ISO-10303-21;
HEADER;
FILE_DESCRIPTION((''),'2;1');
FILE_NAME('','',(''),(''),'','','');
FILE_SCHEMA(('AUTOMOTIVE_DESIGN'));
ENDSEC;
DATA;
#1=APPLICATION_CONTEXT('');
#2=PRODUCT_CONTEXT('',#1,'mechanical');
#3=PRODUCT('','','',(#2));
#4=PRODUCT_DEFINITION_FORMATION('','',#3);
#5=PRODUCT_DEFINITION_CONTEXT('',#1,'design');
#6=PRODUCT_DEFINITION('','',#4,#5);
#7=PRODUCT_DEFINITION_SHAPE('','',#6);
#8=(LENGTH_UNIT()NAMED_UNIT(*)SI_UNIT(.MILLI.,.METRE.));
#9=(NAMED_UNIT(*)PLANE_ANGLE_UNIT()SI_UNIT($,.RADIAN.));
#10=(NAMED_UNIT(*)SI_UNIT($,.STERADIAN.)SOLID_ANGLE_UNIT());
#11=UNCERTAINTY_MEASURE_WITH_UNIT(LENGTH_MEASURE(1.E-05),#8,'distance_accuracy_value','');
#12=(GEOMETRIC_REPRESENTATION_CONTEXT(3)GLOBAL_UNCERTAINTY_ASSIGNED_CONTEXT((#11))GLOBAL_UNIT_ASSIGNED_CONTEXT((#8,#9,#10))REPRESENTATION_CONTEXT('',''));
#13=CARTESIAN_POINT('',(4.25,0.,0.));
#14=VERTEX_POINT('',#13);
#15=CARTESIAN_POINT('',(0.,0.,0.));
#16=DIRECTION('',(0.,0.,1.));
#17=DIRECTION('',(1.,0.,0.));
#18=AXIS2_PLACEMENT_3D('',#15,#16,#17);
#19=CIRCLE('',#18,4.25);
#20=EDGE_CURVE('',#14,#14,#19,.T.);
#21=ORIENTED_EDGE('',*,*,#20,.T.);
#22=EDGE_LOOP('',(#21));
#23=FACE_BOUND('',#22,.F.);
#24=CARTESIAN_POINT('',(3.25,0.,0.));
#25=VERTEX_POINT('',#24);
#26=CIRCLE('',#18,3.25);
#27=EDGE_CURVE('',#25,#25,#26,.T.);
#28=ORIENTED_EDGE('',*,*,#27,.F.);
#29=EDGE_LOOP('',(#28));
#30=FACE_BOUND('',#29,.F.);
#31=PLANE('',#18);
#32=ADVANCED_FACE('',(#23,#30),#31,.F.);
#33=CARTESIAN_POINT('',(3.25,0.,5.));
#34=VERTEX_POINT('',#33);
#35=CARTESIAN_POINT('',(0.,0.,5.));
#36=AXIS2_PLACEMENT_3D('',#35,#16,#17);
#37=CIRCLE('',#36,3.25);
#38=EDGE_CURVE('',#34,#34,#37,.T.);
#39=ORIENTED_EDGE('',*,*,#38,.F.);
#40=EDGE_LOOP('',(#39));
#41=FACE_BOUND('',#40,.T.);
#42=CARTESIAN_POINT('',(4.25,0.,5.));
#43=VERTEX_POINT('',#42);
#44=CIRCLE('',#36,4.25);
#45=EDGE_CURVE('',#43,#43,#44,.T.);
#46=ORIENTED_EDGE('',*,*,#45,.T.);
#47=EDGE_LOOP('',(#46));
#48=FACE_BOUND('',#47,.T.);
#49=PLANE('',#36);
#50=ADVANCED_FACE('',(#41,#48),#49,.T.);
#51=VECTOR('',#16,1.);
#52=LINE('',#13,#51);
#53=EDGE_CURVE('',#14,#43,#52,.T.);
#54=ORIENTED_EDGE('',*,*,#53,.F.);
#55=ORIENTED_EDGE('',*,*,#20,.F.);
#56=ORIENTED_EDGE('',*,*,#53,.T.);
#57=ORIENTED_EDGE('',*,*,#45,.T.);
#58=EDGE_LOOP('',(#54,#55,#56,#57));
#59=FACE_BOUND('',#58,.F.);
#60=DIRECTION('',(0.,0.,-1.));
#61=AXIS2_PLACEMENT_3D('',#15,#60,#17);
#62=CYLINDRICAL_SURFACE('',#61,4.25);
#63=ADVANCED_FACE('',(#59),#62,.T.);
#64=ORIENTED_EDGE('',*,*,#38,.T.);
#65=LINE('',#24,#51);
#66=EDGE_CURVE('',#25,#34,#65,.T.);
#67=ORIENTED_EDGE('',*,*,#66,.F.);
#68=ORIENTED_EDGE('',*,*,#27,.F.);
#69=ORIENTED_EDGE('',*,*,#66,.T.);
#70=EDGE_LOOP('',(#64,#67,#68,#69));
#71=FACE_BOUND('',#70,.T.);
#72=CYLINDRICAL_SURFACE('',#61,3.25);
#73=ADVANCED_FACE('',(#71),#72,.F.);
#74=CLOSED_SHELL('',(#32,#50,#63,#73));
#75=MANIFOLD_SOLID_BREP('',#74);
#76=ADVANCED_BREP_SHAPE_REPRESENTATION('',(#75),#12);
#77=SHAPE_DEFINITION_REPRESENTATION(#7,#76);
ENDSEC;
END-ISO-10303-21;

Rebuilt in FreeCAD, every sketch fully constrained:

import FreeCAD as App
import Part
import Sketcher

V = App.Vector

doc = App.newDocument("Part")
body = doc.addObject("PartDesign::Body", "Body")

# Sketch on XY plane
sketch1 = doc.addObject("Sketcher::SketchObject", "Sketch")
body.addObject(sketch1)
sketch1.AttachmentSupport = (doc.XY_Plane, [""])
sketch1.MapMode = "FlatFace"
sketch1.addGeometry([
    Part.Circle(V(0, 0, 0), V(0, 0, 1), 4.25),
    Part.Circle(V(0, 0, 0), V(0, 0, 1), 3.25),
], False)
sketch1.addConstraint([
    Sketcher.Constraint("Coincident", 0, 3, -1, 1),
    Sketcher.Constraint("Coincident", 1, 3, -1, 1),
    Sketcher.Constraint("Diameter", 0, 8.5),
    Sketcher.Constraint("Diameter", 1, 6.5),
])
pad1 = doc.addObject("PartDesign::Pad", "Pad")
body.addObject(pad1)
pad1.Profile = sketch1
pad1.Length = 5

doc.recompute()
